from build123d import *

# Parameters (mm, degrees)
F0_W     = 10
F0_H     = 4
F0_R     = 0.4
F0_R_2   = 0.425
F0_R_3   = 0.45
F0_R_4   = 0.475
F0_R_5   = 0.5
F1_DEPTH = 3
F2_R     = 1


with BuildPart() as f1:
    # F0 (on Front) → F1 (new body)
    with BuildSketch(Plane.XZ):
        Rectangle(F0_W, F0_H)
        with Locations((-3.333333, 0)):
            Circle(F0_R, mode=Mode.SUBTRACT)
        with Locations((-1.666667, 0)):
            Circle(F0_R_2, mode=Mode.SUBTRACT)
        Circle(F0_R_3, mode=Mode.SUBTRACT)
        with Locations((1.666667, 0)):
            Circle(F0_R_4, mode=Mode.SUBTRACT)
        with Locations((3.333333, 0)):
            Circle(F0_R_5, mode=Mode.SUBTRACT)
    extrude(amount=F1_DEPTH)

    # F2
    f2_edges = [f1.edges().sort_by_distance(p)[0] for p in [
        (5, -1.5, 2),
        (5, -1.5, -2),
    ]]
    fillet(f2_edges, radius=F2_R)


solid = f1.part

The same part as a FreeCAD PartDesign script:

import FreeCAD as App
import Part
import Sketcher
from FreeCAD import Vector


def edges_at(feature, points):
    """Names of the edges that pass closest to the given points."""
    edges = feature.Shape.Edges
    near = lambda p: min(range(len(edges)), key=lambda i: edges[i].distToShape(Part.Vertex(*p))[0])
    return sorted({f"Edge{near(p) + 1}" for p in points})

doc = App.newDocument("Part")
body = doc.addObject("PartDesign::Body", "Body")

# Sketch on XZ plane
sketch1 = body.newObject("Sketcher::SketchObject", "Sketch")
sketch1.AttachmentSupport = (doc.getObject("XZ_Plane"), [""])
sketch1.MapMode = "FlatFace"
sketch1.addGeometry([
    Part.LineSegment(Vector(-5, 2, 0), Vector(-5, -2, 0)),  # 0
    Part.LineSegment(Vector(-5, -2, 0), Vector(5, -2, 0)),  # 1
    Part.LineSegment(Vector(5, -2, 0), Vector(5, 2, 0)),  # 2
    Part.LineSegment(Vector(5, 2, 0), Vector(-5, 2, 0)),  # 3
    Part.Circle(Vector(-3.33, 0, 0), Vector(0, 0, 1), 0.4),  # 4
    Part.Circle(Vector(-1.67, 0, 0), Vector(0, 0, 1), 0.42),  # 5
    Part.Circle(Vector(0, 0, 0), Vector(0, 0, 1), 0.45),  # 6
    Part.Circle(Vector(1.67, 0, 0), Vector(0, 0, 1), 0.47),  # 7
    Part.Circle(Vector(3.33, 0, 0), Vector(0, 0, 1), 0.5),  # 8
], False)
sketch1.addConstraint([
    Sketcher.Constraint("Coincident", 0, 2, 1, 1),
    Sketcher.Constraint("Coincident", 1, 2, 2, 1),
    Sketcher.Constraint("Coincident", 2, 2, 3, 1),
    Sketcher.Constraint("Coincident", 3, 2, 0, 1),
    Sketcher.Constraint("Vertical", 0),
    Sketcher.Constraint("Horizontal", 1),
    Sketcher.Constraint("Vertical", 2),
    Sketcher.Constraint("Horizontal", 3),
    Sketcher.Constraint("Coincident", 6, 3, -1, 1),
    Sketcher.Constraint("Symmetric", 5, 3, 7, 3, -1, 1),
    Sketcher.Constraint("Symmetric", 4, 3, 8, 3, -1, 1),
    Sketcher.Constraint("Symmetric", 0, 2, 2, 2, -1, 1),
    Sketcher.Constraint("PointOnObject", 4, 3, -1),
    Sketcher.Constraint("PointOnObject", 5, 3, -1),
    Sketcher.Constraint("Diameter", 8, 1.0),
    Sketcher.Constraint("Diameter", 4, 0.8),
    Sketcher.Constraint("Diameter", 6, 0.9),
    Sketcher.Constraint("Diameter", 5, 0.85),
    Sketcher.Constraint("Diameter", 7, 0.95),
    Sketcher.Constraint("DistanceX", 1, 1, 1, 2, 10.0),
    Sketcher.Constraint("DistanceY", 0, 2, 0, 1, 4.0),
    Sketcher.Constraint("DistanceX", 4, 3, 7, 3, 5.0),
    Sketcher.Constraint("DistanceX", 4, 3, -1, 1, 3.333333),
])
pad1 = body.newObject("PartDesign::Pad", "Pad")
pad1.Profile = sketch1
pad1.Length = 3
doc.recompute()

fillet = body.newObject("PartDesign::Fillet", "Fillet")
fillet.Base = (pad1, edges_at(pad1, [(5, -1.5, 2), (5, -1.5, -2)]))
fillet.Radius = 1

doc.recompute()
